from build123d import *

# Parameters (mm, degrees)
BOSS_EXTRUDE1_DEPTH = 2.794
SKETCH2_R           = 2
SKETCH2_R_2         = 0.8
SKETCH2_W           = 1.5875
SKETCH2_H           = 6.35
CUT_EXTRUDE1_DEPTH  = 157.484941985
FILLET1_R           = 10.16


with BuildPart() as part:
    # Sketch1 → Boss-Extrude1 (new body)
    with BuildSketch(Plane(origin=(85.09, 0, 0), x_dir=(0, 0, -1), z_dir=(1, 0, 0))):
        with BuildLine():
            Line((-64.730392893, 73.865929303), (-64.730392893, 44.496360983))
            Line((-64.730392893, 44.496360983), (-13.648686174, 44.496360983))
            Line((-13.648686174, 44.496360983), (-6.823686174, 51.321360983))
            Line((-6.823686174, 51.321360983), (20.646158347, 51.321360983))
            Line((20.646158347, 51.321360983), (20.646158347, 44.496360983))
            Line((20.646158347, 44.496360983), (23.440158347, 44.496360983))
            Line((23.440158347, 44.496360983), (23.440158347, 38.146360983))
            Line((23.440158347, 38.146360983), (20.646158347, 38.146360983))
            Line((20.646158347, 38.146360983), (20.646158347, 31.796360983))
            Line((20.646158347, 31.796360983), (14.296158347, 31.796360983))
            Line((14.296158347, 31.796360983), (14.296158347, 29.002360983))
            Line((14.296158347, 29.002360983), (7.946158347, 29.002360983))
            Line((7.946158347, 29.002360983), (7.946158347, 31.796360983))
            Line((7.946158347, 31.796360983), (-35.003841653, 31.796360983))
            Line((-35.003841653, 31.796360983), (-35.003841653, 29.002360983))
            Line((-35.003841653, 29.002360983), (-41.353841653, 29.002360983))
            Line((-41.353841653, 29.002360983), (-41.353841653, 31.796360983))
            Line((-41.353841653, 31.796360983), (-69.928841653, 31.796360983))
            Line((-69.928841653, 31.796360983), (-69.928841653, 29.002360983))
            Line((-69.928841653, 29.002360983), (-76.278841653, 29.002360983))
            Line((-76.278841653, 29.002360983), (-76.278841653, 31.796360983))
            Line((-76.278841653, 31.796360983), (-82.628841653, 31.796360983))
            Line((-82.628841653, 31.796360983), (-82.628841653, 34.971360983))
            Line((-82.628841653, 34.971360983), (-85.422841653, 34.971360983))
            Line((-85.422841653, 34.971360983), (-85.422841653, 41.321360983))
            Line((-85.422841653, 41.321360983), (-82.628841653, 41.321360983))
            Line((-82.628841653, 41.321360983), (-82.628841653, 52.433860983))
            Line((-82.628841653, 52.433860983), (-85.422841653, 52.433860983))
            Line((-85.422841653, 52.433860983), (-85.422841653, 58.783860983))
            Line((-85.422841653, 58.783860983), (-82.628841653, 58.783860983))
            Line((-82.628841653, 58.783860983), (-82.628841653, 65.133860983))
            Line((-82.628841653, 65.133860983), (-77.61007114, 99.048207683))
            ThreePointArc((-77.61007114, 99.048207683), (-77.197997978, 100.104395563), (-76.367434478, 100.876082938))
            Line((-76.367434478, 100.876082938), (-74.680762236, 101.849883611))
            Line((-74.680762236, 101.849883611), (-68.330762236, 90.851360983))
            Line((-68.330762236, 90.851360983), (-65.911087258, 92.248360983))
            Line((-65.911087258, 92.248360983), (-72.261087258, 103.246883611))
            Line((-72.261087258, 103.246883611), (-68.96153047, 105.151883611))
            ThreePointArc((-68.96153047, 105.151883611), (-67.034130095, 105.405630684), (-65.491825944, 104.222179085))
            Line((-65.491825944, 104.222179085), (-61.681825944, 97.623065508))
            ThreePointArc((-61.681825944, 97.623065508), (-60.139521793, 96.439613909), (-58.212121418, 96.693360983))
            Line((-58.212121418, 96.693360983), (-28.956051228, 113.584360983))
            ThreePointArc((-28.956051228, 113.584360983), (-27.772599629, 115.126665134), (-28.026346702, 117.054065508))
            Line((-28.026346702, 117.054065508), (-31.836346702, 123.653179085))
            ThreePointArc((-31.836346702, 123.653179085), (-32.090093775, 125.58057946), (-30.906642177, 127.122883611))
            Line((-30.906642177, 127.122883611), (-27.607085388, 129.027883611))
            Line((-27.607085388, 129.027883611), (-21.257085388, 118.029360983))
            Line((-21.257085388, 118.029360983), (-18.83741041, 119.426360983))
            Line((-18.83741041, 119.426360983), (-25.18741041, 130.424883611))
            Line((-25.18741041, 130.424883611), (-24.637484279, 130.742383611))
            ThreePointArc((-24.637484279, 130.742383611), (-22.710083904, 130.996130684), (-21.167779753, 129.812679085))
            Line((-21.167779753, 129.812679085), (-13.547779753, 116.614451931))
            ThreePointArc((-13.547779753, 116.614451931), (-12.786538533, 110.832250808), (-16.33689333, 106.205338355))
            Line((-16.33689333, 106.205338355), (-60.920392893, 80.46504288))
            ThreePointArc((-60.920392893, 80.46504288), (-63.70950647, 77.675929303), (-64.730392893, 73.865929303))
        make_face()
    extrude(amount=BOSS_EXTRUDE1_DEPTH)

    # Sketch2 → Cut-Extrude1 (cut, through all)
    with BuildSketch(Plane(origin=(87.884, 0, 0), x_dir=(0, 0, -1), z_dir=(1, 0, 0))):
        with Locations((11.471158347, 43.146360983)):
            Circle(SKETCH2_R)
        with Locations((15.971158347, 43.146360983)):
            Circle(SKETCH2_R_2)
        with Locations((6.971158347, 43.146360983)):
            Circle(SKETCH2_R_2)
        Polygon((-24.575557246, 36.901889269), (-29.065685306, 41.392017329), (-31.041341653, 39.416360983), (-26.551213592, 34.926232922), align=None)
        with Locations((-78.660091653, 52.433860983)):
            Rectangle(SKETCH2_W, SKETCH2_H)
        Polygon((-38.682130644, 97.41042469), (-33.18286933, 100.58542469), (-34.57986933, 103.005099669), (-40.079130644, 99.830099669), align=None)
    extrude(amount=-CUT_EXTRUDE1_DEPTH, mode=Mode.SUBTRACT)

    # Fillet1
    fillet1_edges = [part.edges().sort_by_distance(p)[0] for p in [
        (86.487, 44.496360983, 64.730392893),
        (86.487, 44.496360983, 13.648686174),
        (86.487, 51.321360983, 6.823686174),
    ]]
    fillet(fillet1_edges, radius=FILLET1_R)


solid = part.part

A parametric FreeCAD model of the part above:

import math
import FreeCAD as App
import Part
import Sketcher
Q = App.Units.Quantity


def edges_at(feature, points):
    """Names of the edges that pass closest to the given points."""
    edges = feature.Shape.Edges
    near = lambda p: min(range(len(edges)), key=lambda i: edges[i].distToShape(Part.Vertex(*p))[0])
    return sorted({f"Edge{near(p) + 1}" for p in points})


def add_polygon(sketch, points):
    """Adds a closed chain of lines whose ends are joined by coincident constraints."""
    first, n = sketch.GeometryCount, len(points)
    for a, b in zip(points, points[1:] + points[:1]):
        sketch.addGeometry(Part.LineSegment(App.Vector(*a, 0), App.Vector(*b, 0)), False)
    for i in range(n):
        sketch.addConstraint(Sketcher.Constraint("Coincident", first + i, 2, first + (i + 1) % n, 1))

doc = App.newDocument("Part")
params = doc.addObject("Spreadsheet::Sheet", "Params")
for row, (alias, value) in enumerate([
    ("sketch1_radius", "0.3 in"),
    ("sketch1_radius2", "0.1 in"),
    ("sketch1_length", "0.6 in"),
    ("sketch1_length2", "0.5 in"),
    ("sketch1_length3", "0.3 in"),
    ("pad1_length", "0.11 in"),
    ("sketch2_width", "0.25 in"),
    ("sketch2_length", "0.25 in"),
    ("sketch2_length2", "0.11 in"),
    ("sketch2_height", "0.0625 in"),
    ("fillet_radius", "0.4 in"),
], start=1):
    params.set(f"A{row}", alias)
    params.set(f"B{row}", "=" + value)
    params.setAlias(f"B{row}", alias)

body = doc.addObject("PartDesign::Body", "Body")

# Sketch on YZ plane
sketch1 = body.newObject("Sketcher::SketchObject", "Sketch")
sketch1.AttachmentSupport = (doc.getObject("YZ_Plane"), [""])
sketch1.MapMode = "FlatFace"
sketch1.AttachmentOffset = App.Placement(App.Vector(0, 0, 3.35 * 25.4), App.Rotation())
sketch1.addGeometry(Part.LineSegment(App.Vector(44.5, 64.7, 0), App.Vector(73.9, 64.7, 0)), False)
sketch1.addGeometry(Part.ArcOfCircle(Part.Circle(App.Vector(73.9, 57.1, 0), App.Vector(0, 0, 1), 7.6), math.radians(30), math.radians(90)), False)
sketch1.addGeometry(Part.LineSegment(App.Vector(80.5, 60.9, 0), App.Vector(106.2, 16.3, 0)), False)
sketch1.addGeometry(Part.ArcOfCircle(Part.Circle(App.Vector(112.8, 20.1, 0), App.Vector(0, 0, 1), 7.6), math.radians(-150), math.radians(-60)), False)
sketch1.addGeometry(Part.LineSegment(App.Vector(116.6, 13.5, 0), App.Vector(129.8, 21.2, 0)), False)
sketch1.addGeometry(Part.ArcOfCircle(Part.Circle(App.Vector(128.5, 23.4, 0), App.Vector(0, 0, 1), 2.5), math.radians(-60), math.radians(30)), False)
sketch1.addGeometry(Part.LineSegment(App.Vector(130.7, 24.6, 0), App.Vector(130.4, 25.2, 0)), False)
sketch1.addGeometry(Part.LineSegment(App.Vector(130.4, 25.2, 0), App.Vector(119.4, 18.8, 0)), False)
sketch1.addGeometry(Part.LineSegment(App.Vector(119.4, 18.8, 0), App.Vector(118, 21.3, 0)), False)
sketch1.addGeometry(Part.LineSegment(App.Vector(118, 21.3, 0), App.Vector(129, 27.6, 0)), False)
sketch1.addGeometry(Part.LineSegment(App.Vector(129, 27.6, 0), App.Vector(127.1, 30.9, 0)), False)
sketch1.addGeometry(Part.ArcOfCircle(Part.Circle(App.Vector(124.9, 29.6, 0), App.Vector(0, 0, 1), 2.5), math.radians(30), math.radians(120)), False)
sketch1.addGeometry(Part.LineSegment(App.Vector(123.7, 31.8, 0), App.Vector(117.1, 28, 0)), False)
sketch1.addGeometry(Part.ArcOfCircle(Part.Circle(App.Vector(115.8, 30.2, 0), App.Vector(0, 0, 1), 2.5), math.radians(-150), math.radians(-60)), False)
sketch1.addGeometry(Part.LineSegment(App.Vector(113.6, 29, 0), App.Vector(96.7, 58.2, 0)), False)
sketch1.addGeometry(Part.ArcOfCircle(Part.Circle(App.Vector(98.9, 59.5, 0), App.Vector(0, 0, 1), 2.5), math.radians(120), math.radians(210)), False)
sketch1.addGeometry(Part.LineSegment(App.Vector(97.6, 61.7, 0), App.Vector(104.2, 65.5, 0)), False)
sketch1.addGeometry(Part.ArcOfCircle(Part.Circle(App.Vector(103, 67.7, 0), App.Vector(0, 0, 1), 2.5), math.radians(-60), math.radians(30)), False)
sketch1.addGeometry(Part.LineSegment(App.Vector(105.2, 69, 0), App.Vector(103.2, 72.3, 0)), False)
sketch1.addGeometry(Part.LineSegment(App.Vector(103.2, 72.3, 0), App.Vector(92.2, 65.9, 0)), False)
sketch1.addGeometry(Part.LineSegment(App.Vector(92.2, 65.9, 0), App.Vector(90.9, 68.3, 0)), False)
sketch1.addGeometry(Part.LineSegment(App.Vector(90.9, 68.3, 0), App.Vector(101.8, 74.7, 0)), False)
sketch1.addGeometry(Part.LineSegment(App.Vector(101.8, 74.7, 0), App.Vector(100.9, 76.4, 0)), False)
sketch1.addGeometry(Part.ArcOfCircle(Part.Circle(App.Vector(98.7, 75.1, 0), App.Vector(0, 0, 1), 2.5), math.radians(30), math.radians(82)), False)
sketch1.addGeometry(Part.LineSegment(App.Vector(99, 77.6, 0), App.Vector(65.1, 82.6, 0)), False)
sketch1.addGeometry(Part.LineSegment(App.Vector(65.1, 82.6, 0), App.Vector(58.8, 82.6, 0)), False)
sketch1.addGeometry(Part.LineSegment(App.Vector(58.8, 82.6, 0), App.Vector(58.8, 85.4, 0)), False)
sketch1.addGeometry(Part.LineSegment(App.Vector(58.8, 85.4, 0), App.Vector(52.4, 85.4, 0)), False)
sketch1.addGeometry(Part.LineSegment(App.Vector(52.4, 85.4, 0), App.Vector(52.4, 82.6, 0)), False)
sketch1.addGeometry(Part.LineSegment(App.Vector(52.4, 82.6, 0), App.Vector(41.3, 82.6, 0)), False)
sketch1.addGeometry(Part.LineSegment(App.Vector(41.3, 82.6, 0), App.Vector(41.3, 85.4, 0)), False)
sketch1.addGeometry(Part.LineSegment(App.Vector(41.3, 85.4, 0), App.Vector(35, 85.4, 0)), False)
sketch1.addGeometry(Part.LineSegment(App.Vector(35, 85.4, 0), App.Vector(35, 82.6, 0)), False)
sketch1.addGeometry(Part.LineSegment(App.Vector(35, 82.6, 0), App.Vector(31.8, 82.6, 0)), False)
sketch1.addGeometry(Part.LineSegment(App.Vector(31.8, 82.6, 0), App.Vector(31.8, 76.3, 0)), False)
sketch1.addGeometry(Part.LineSegment(App.Vector(31.8, 76.3, 0), App.Vector(29, 76.3, 0)), False)
sketch1.addGeometry(Part.LineSegment(App.Vector(29, 76.3, 0), App.Vector(29, 69.9, 0)), False)
sketch1.addGeometry(Part.LineSegment(App.Vector(29, 69.9, 0), App.Vector(31.8, 69.9, 0)), False)
sketch1.addGeometry(Part.LineSegment(App.Vector(31.8, 69.9, 0), App.Vector(31.8, 41.4, 0)), False)
sketch1.addGeometry(Part.LineSegment(App.Vector(31.8, 41.4, 0), App.Vector(29, 41.4, 0)), False)
sketch1.addGeometry(Part.LineSegment(App.Vector(29, 41.4, 0), App.Vector(29, 35, 0)), False)
sketch1.addGeometry(Part.LineSegment(App.Vector(29, 35, 0), App.Vector(31.8, 35, 0)), False)
sketch1.addGeometry(Part.LineSegment(App.Vector(31.8, 35, 0), App.Vector(31.8, -7.9, 0)), False)
sketch1.addGeometry(Part.LineSegment(App.Vector(31.8, -7.9, 0), App.Vector(29, -7.9, 0)), False)
sketch1.addGeometry(Part.LineSegment(App.Vector(29, -7.9, 0), App.Vector(29, -14.3, 0)), False)
sketch1.addGeometry(Part.LineSegment(App.Vector(29, -14.3, 0), App.Vector(31.8, -14.3, 0)), False)
sketch1.addGeometry(Part.LineSegment(App.Vector(31.8, -14.3, 0), App.Vector(31.8, -20.6, 0)), False)
sketch1.addGeometry(Part.LineSegment(App.Vector(31.8, -20.6, 0), App.Vector(38.1, -20.6, 0)), False)
sketch1.addGeometry(Part.LineSegment(App.Vector(38.1, -20.6, 0), App.Vector(38.1, -23.4, 0)), False)
sketch1.addGeometry(Part.LineSegment(App.Vector(38.1, -23.4, 0), App.Vector(44.5, -23.4, 0)), False)
sketch1.addGeometry(Part.LineSegment(App.Vector(44.5, -23.4, 0), App.Vector(44.5, -20.6, 0)), False)
sketch1.addGeometry(Part.LineSegment(App.Vector(44.5, -20.6, 0), App.Vector(51.3, -20.6, 0)), False)
sketch1.addGeometry(Part.LineSegment(App.Vector(51.3, -20.6, 0), App.Vector(51.3, 6.8, 0)), False)
sketch1.addGeometry(Part.LineSegment(App.Vector(51.3, 6.8, 0), App.Vector(44.5, 13.6, 0)), False)
sketch1.addGeometry(Part.LineSegment(App.Vector(44.5, 13.6, 0), App.Vector(44.5, 64.7, 0)), False)
sketch1.addConstraint(Sketcher.Constraint("Tangent", 0, 2, 1, 2))
sketch1.addConstraint(Sketcher.Constraint("Tangent", 1, 1, 2, 1))
sketch1.addConstraint(Sketcher.Constraint("Tangent", 2, 2, 3, 1))
sketch1.addConstraint(Sketcher.Constraint("Tangent", 3, 2, 4, 1))
sketch1.addConstraint(Sketcher.Constraint("Tangent", 4, 2, 5, 1))
sketch1.addConstraint(Sketcher.Constraint("Tangent", 5, 2, 6, 1))
sketch1.addConstraint(Sketcher.Constraint("Coincident", 6, 2, 7, 1))
sketch1.addConstraint(Sketcher.Constraint("Coincident", 7, 2, 8, 1))
sketch1.addConstraint(Sketcher.Constraint("Coincident", 8, 2, 9, 1))
sketch1.addConstraint(Sketcher.Constraint("Coincident", 9, 2, 10, 1))
sketch1.addConstraint(Sketcher.Constraint("Tangent", 10, 2, 11, 1))
sketch1.addConstraint(Sketcher.Constraint("Tangent", 11, 2, 12, 1))
sketch1.addConstraint(Sketcher.Constraint("Tangent", 12, 2, 13, 2))
sketch1.addConstraint(Sketcher.Constraint("Tangent", 13, 1, 14, 1))
sketch1.addConstraint(Sketcher.Constraint("Tangent", 14, 2, 15, 2))
sketch1.addConstraint(Sketcher.Constraint("Tangent", 15, 1, 16, 1))
sketch1.addConstraint(Sketcher.Constraint("Tangent", 16, 2, 17, 1))
sketch1.addConstraint(Sketcher.Constraint("Tangent", 17, 2, 18, 1))
sketch1.addConstraint(Sketcher.Constraint("Coincident", 18, 2, 19, 1))
sketch1.addConstraint(Sketcher.Constraint("Coincident", 19, 2, 20, 1))
sketch1.addConstraint(Sketcher.Constraint("Coincident", 20, 2, 21, 1))
sketch1.addConstraint(Sketcher.Constraint("Coincident", 21, 2, 22, 1))
sketch1.addConstraint(Sketcher.Constraint("Tangent", 22, 2, 23, 1))
sketch1.addConstraint(Sketcher.Constraint("Tangent", 23, 2, 24, 1))
sketch1.addConstraint(Sketcher.Constraint("Coincident", 24, 2, 25, 1))
sketch1.addConstraint(Sketcher.Constraint("Coincident", 25, 2, 26, 1))
sketch1.addConstraint(Sketcher.Constraint("Coincident", 26, 2, 27, 1))
sketch1.addConstraint(Sketcher.Constraint("Coincident", 27, 2, 28, 1))
sketch1.addConstraint(Sketcher.Constraint("Coincident", 28, 2, 29, 1))
sketch1.addConstraint(Sketcher.Constraint("Coincident", 29, 2, 30, 1))
sketch1.addConstraint(Sketcher.Constraint("Coincident", 30, 2, 31, 1))
sketch1.addConstraint(Sketcher.Constraint("Coincident", 31, 2, 32, 1))
sketch1.addConstraint(Sketcher.Constraint("Coincident", 32, 2, 33, 1))
sketch1.addConstraint(Sketcher.Constraint("Coincident", 33, 2, 34, 1))
sketch1.addConstraint(Sketcher.Constraint("Coincident", 34, 2, 35, 1))
sketch1.addConstraint(Sketcher.Constraint("Coincident", 35, 2, 36, 1))
sketch1.addConstraint(Sketcher.Constraint("Coincident", 36, 2, 37, 1))
sketch1.addConstraint(Sketcher.Constraint("Coincident", 37, 2, 38, 1))
sketch1.addConstraint(Sketcher.Constraint("Coincident", 38, 2, 39, 1))
sketch1.addConstraint(Sketcher.Constraint("Coincident", 39, 2, 40, 1))
sketch1.addConstraint(Sketcher.Constraint("Coincident", 40, 2, 41, 1))
sketch1.addConstraint(Sketcher.Constraint("Coincident", 41, 2, 42, 1))
sketch1.addConstraint(Sketcher.Constraint("Coincident", 42, 2, 43, 1))
sketch1.addConstraint(Sketcher.Constraint("Coincident", 43, 2, 44, 1))
sketch1.addConstraint(Sketcher.Constraint("Coincident", 44, 2, 45, 1))
sketch1.addConstraint(Sketcher.Constraint("Coincident", 45, 2, 46, 1))
sketch1.addConstraint(Sketcher.Constraint("Coincident", 46, 2, 47, 1))
sketch1.addConstraint(Sketcher.Constraint("Coincident", 47, 2, 48, 1))
sketch1.addConstraint(Sketcher.Constraint("Coincident", 48, 2, 49, 1))
sketch1.addConstraint(Sketcher.Constraint("Coincident", 49, 2, 50, 1))
sketch1.addConstraint(Sketcher.Constraint("Coincident", 50, 2, 51, 1))
sketch1.addConstraint(Sketcher.Constraint("Coincident", 51, 2, 52, 1))
sketch1.addConstraint(Sketcher.Constraint("Coincident", 52, 2, 53, 1))
sketch1.addConstraint(Sketcher.Constraint("Coincident", 53, 2, 54, 1))
sketch1.addConstraint(Sketcher.Constraint("Coincident", 54, 2, 0, 1))
sketch1.addConstraint(Sketcher.Constraint("Horizontal", 0))
sketch1.addConstraint(Sketcher.Constraint("Horizontal", 25))
sketch1.addConstraint(Sketcher.Constraint("Vertical", 26))
sketch1.addConstraint(Sketcher.Constraint("Horizontal", 27))
sketch1.addConstraint(Sketcher.Constraint("Vertical", 28))
sketch1.addConstraint(Sketcher.Constraint("Horizontal", 29))
sketch1.addConstraint(Sketcher.Constraint("Vertical", 30))
sketch1.addConstraint(Sketcher.Constraint("Horizontal", 31))
sketch1.addConstraint(Sketcher.Constraint("Vertical", 32))
sketch1.addConstraint(Sketcher.Constraint("Horizontal", 33))
sketch1.addConstraint(Sketcher.Constraint("Vertical", 34))
sketch1.addConstraint(Sketcher.Constraint("Horizontal", 35))
sketch1.addConstraint(Sketcher.Constraint("Vertical", 36))
sketch1.addConstraint(Sketcher.Constraint("Horizontal", 37))
sketch1.addConstraint(Sketcher.Constraint("Vertical", 38))
sketch1.addConstraint(Sketcher.Constraint("Horizontal", 39))
sketch1.addConstraint(Sketcher.Constraint("Vertical", 40))
sketch1.addConstraint(Sketcher.Constraint("Horizontal", 41))
sketch1.addConstraint(Sketcher.Constraint("Vertical", 42))
sketch1.addConstraint(Sketcher.Constraint("Horizontal", 43))
sketch1.addConstraint(Sketcher.Constraint("Vertical", 44))
sketch1.addConstraint(Sketcher.Constraint("Horizontal", 45))
sketch1.addConstraint(Sketcher.Constraint("Vertical", 46))
sketch1.addConstraint(Sketcher.Constraint("Horizontal", 47))
sketch1.addConstraint(Sketcher.Constraint("Vertical", 48))
sketch1.addConstraint(Sketcher.Constraint("Horizontal", 49))
sketch1.addConstraint(Sketcher.Constraint("Vertical", 50))
sketch1.addConstraint(Sketcher.Constraint("Horizontal", 51))
sketch1.addConstraint(Sketcher.Constraint("Vertical", 52))
sketch1.addConstraint(Sketcher.Constraint("Vertical", 54))
sketch1.addConstraint(Sketcher.Constraint("Equal", 1, 3))
sketch1.addConstraint(Sketcher.Constraint("Equal", 5, 11))
sketch1.addConstraint(Sketcher.Constraint("Equal", 11, 13))
sketch1.addConstraint(Sketcher.Constraint("Equal", 13, 15))
sketch1.addConstraint(Sketcher.Constraint("Equal", 15, 17))
sketch1.addConstraint(Sketcher.Constraint("Equal", 17, 23))
sketch1.addConstraint(Sketcher.Constraint("Perpendicular", 2, 4))
sketch1.addConstraint(Sketcher.Constraint("Perpendicular", 4, 6))
sketch1.addConstraint(Sketcher.Constraint("Perpendicular", 6, 7))
sketch1.addConstraint(Sketcher.Constraint("Perpendicular", 7, 8))
sketch1.addConstraint(Sketcher.Constraint("Perpendicular", 8, 9))
sketch1.addConstraint(Sketcher.Constraint("Perpendicular", 9, 10))
sketch1.addConstraint(Sketcher.Constraint("Perpendicular", 10, 12))
sketch1.addConstraint(Sketcher.Constraint("Perpendicular", 12, 14))
sketch1.addConstraint(Sketcher.Constraint("Perpendicular", 14, 16))
sketch1.addConstraint(Sketcher.Constraint("Perpendicular", 16, 18))
sketch1.addConstraint(Sketcher.Constraint("Perpendicular", 18, 19))
sketch1.addConstraint(Sketcher.Constraint("Perpendicular", 19, 20))
sketch1.addConstraint(Sketcher.Constraint("Perpendicular", 20, 21))
sketch1.addConstraint(Sketcher.Constraint("Perpendicular", 21, 22))
sketch1.addConstraint(Sketcher.Constraint("Horizontal", 25, 2, 28, 2))
sketch1.addConstraint(Sketcher.Constraint("Horizontal", 27, 2, 30, 2))
sketch1.addConstraint(Sketcher.Constraint("Horizontal", 29, 2, 32, 2))
sketch1.addConstraint(Sketcher.Constraint("Horizontal", 47, 2, 50, 2))
sketch1.addConstraint(Sketcher.Constraint("Vertical", 34, 2, 37, 2))
sketch1.addConstraint(Sketcher.Constraint("Vertical", 36, 2, 39, 2))
sketch1.addConstraint(Sketcher.Constraint("Vertical", 38, 2, 41, 2))
sketch1.addConstraint(Sketcher.Constraint("Vertical", 40, 2, 43, 2))
sketch1.addConstraint(Sketcher.Constraint("Vertical", 42, 2, 45, 2))
sketch1.addConstraint(Sketcher.Constraint("Vertical", 50, 2, 53, 2))
sketch1.addConstraint(Sketcher.Constraint("Equal", 25, 27))
sketch1.addConstraint(Sketcher.Constraint("Equal", 27, 31))
sketch1.addConstraint(Sketcher.Constraint("Equal", 31, 47))
sketch1.addConstraint(Sketcher.Constraint("Equal", 47, 49))
sketch1.addConstraint(Sketcher.Constraint("Equal", 45, 26))
sketch1.addConstraint(Sketcher.Constraint("Equal", 49, 34))
sketch1.addConstraint(Sketcher.Constraint("Equal", 34, 36))
sketch1.addConstraint(Sketcher.Constraint("Equal", 36, 40))
sketch1.addConstraint(Sketcher.Constraint("Equal", 40, 44))
sketch1.addConstraint(Sketcher.Constraint("Equal", 44, 46))
sketch1.addConstraint(Sketcher.Constraint("Equal", 32, 48))
sketch1.addConstraint(Sketcher.Constraint("Equal", 7, 9))
sketch1.addConstraint(Sketcher.Constraint("Equal", 12, 16))
sketch1.addConstraint(Sketcher.Constraint("Equal", 10, 18))
sketch1.addConstraint(Sketcher.Constraint("Equal", 9, 19))
sketch1.addConstraint(Sketcher.Constraint("Equal", 8, 20))
sketch1.addConstraint(Sketcher.Constraint("Equal", 19, 21))
sketch1.addConstraint(Sketcher.Constraint("Radius", 1, Q("0.3 in")))
sketch1.addConstraint(Sketcher.Constraint("Radius", 5, Q("0.1 in")))
sketch1.addConstraint(Sketcher.Constraint("Angle", 2, Q("-60 deg")))
sketch1.addConstraint(Sketcher.Constraint("Angle", 53, Q("135 deg")))
sketch1.addConstraint(Sketcher.Constraint("Distance", 4, Q("0.6 in")))
sketch1.addConstraint(Sketcher.Constraint("Distance", 7, Q("0.5 in")))
sketch1.addConstraint(Sketcher.Constraint("Distance", 12, Q("0.3 in")))
sketch1.addConstraint(Sketcher.Constraint("DistanceX", 25, 2, 25, 1, Q("0.25 in")))
sketch1.addConstraint(Sketcher.Constraint("DistanceX", 35, 2, 35, 1, Q("0.11 in")))
sketch1.addConstraint(Sketcher.Constraint("Distance", 8, Q("0.11 in")))
sketch1.addConstraint(Sketcher.Constraint("Distance", 10, Q("0.15 in")))
sketch1.addConstraint(Sketcher.Constraint("Distance", 14, Q("1.33 in")))
sketch1.addConstraint(Sketcher.Constraint("DistanceX", 29, 2, 29, 1, Q("0.4375 in")))
sketch1.addConstraint(Sketcher.Constraint("DistanceX", 33, 2, 33, 1, Q("0.125 in")))
sketch1.addConstraint(Sketcher.Constraint("DistanceY", 38, 2, 38, 1, Q("1.125 in")))
sketch1.addConstraint(Sketcher.Constraint("Distance", 6, Q("0.025 in")))
sketch1.addConstraint(Sketcher.Constraint("DistanceX", 51, 1, 51, 2, Q("6.825 mm")))
sketch1.addConstraint(Sketcher.Constraint("DistanceY", 42, 2, 42, 1, Q("42.95 mm")))
sketch1.addConstraint(Sketcher.Constraint("Distance", 22, Q("1.947601 mm")))
sketch1.addConstraint(Sketcher.Constraint("DistanceX", 0, 1, 0, 2, Q("29.369568 mm")))
sketch1.addConstraint(Sketcher.Constraint("Distance", 2, Q("51.480591 mm")))
sketch1.addConstraint(Sketcher.Constraint("DistanceY", 52, 1, 52, 2, Q("27.469845 mm")))
sketch1.addConstraint(Sketcher.Constraint("DistanceY", 54, 1, 54, 2, Q("51.081707 mm")))
sketch1.addConstraint(Sketcher.Constraint("DistanceX", -1, 1, 1, 3, Q("73.865929 mm")))
sketch1.addConstraint(Sketcher.Constraint("DistanceY", -1, 1, 13, 3, Q("30.226051 mm")))
sketch1.setExpression("Constraints[132]", "Params.sketch1_radius")
sketch1.setExpression("Constraints[133]", "Params.sketch1_radius2")
sketch1.setExpression("Constraints[136]", "Params.sketch1_length")
sketch1.setExpression("Constraints[137]", "Params.sketch1_length2")
sketch1.setExpression("Constraints[138]", "Params.sketch1_length3")
pad1 = body.newObject("PartDesign::Pad", "Pad")
pad1.Profile = sketch1
pad1.setExpression("Length", "Params.pad1_length")

# Sketch on YZ plane
sketch2 = body.newObject("Sketcher::SketchObject", "Sketch001")
sketch2.AttachmentSupport = (doc.getObject("YZ_Plane"), [""])
sketch2.MapMode = "FlatFace"
sketch2.AttachmentOffset = App.Placement(App.Vector(0, 0, 3.46 * 25.4), App.Rotation())
sketch2.addGeometry(Part.Circle(App.Vector(43.1, -11.5, 0), App.Vector(0, 0, 1), 2), False)  # 0
sketch2.addGeometry(Part.Circle(App.Vector(43.1, -16, 0), App.Vector(0, 0, 1), 0.8), False)  # 1
sketch2.addGeometry(Part.Circle(App.Vector(43.1, -7, 0), App.Vector(0, 0, 1), 0.8), False)  # 2
add_polygon(sketch2, [(36.9, 24.6), (41.4, 29.1), (39.4, 31), (34.9, 26.6)])  # lines 3-6
add_polygon(sketch2, [(55.6, 79.5), (49.3, 79.5), (49.3, 77.9), (55.6, 77.9)])  # lines 7-10
add_polygon(sketch2, [(97.4, 38.7), (100.6, 33.2), (103, 34.6), (99.8, 40.1)])  # lines 11-14
sketch2.addConstraint(Sketcher.Constraint("Horizontal", 7))
sketch2.addConstraint(Sketcher.Constraint("Vertical", 8))
sketch2.addConstraint(Sketcher.Constraint("Horizontal", 9))
sketch2.addConstraint(Sketcher.Constraint("Vertical", 10))
sketch2.addConstraint(Sketcher.Constraint("Equal", 1, 2))
sketch2.addConstraint(Sketcher.Constraint("Perpendicular", 3, 4))
sketch2.addConstraint(Sketcher.Constraint("Perpendicular", 4, 5))
sketch2.addConstraint(Sketcher.Constraint("Perpendicular", 5, 6))
sketch2.addConstraint(Sketcher.Constraint("Perpendicular", 11, 12))
sketch2.addConstraint(Sketcher.Constraint("Perpendicular", 12, 13))
sketch2.addConstraint(Sketcher.Constraint("Perpendicular", 13, 14))
sketch2.addConstraint(Sketcher.Constraint("Vertical", 0, 3, 1, 3))
sketch2.addConstraint(Sketcher.Constraint("Vertical", 1, 3, 2, 3))
sketch2.addConstraint(Sketcher.Constraint("Equal", 5, 11))
sketch2.addConstraint(Sketcher.Constraint("Equal", 6, 12))
sketch2.addConstraint(Sketcher.Constraint("Angle", 3, Q("45 deg")))
sketch2.addConstraint(Sketcher.Constraint("Angle", 11, Q("-60 deg")))
sketch2.addConstraint(Sketcher.Constraint("DistanceX", 7, 2, 7, 1, Q("0.25 in")))
sketch2.addConstraint(Sketcher.Constraint("Distance", 3, Q("0.25 in")))
sketch2.addConstraint(Sketcher.Constraint("Distance", 4, Q("0.11 in")))
sketch2.addConstraint(Sketcher.Constraint("Diameter", 0, Q("4 mm")))
sketch2.addConstraint(Sketcher.Constraint("Diameter", 1, Q("1.6 mm")))
sketch2.addConstraint(Sketcher.Constraint("DistanceY", 8, 2, 8, 1, Q("0.0625 in")))
sketch2.addConstraint(Sketcher.Constraint("DistanceY", -1, 1, 4, 2, Q("1.2221001 in")))
sketch2.addConstraint(Sketcher.Constraint("DistanceX", 4, 2, 7, 2, Q("0.3875 in")))
sketch2.addConstraint(Sketcher.Constraint("DistanceX", -1, 1, 12, 2, Q("103.0051 mm")))
sketch2.addConstraint(Sketcher.Constraint("DistanceY", 1, 3, 0, 3, Q("4.5 mm")))
sketch2.addConstraint(Sketcher.Constraint("DistanceY", 0, 3, 2, 3, Q("4.5 mm")))
sketch2.addConstraint(Sketcher.Constraint("DistanceX", 4, 2, 2, 3, Q("3.73 mm")))
sketch2.addConstraint(Sketcher.Constraint("DistanceY", 2, 3, 4, 2, Q("38.0125 mm")))
sketch2.addConstraint(Sketcher.Constraint("DistanceY", 4, 2, 7, 2, Q("48.4125 mm")))
sketch2.addConstraint(Sketcher.Constraint("DistanceX", -1, 1, 0, 3, Q("43.146361 mm")))
sketch2.addConstraint(Sketcher.Constraint("DistanceY", -1, 1, 11, 2, Q("33.182869 mm")))
sketch2.setExpression("Constraints[29]", "Params.sketch2_width")
sketch2.setExpression("Constraints[30]", "Params.sketch2_length")
sketch2.setExpression("Constraints[31]", "Params.sketch2_length2")
sketch2.setExpression("Constraints[34]", "Params.sketch2_height")
pocket1 = body.newObject("PartDesign::Pocket", "Pocket")
pocket1.Profile = sketch2
pocket1.Type = "ThroughAll"
doc.recompute()

fillet = body.newObject("PartDesign::Fillet", "Fillet")
fillet.Base = (pocket1, edges_at(pocket1, [(86.487, 44.496, 64.73), (86.487, 44.496, 13.649), (86.487, 51.321, 6.824)]))
fillet.setExpression("Radius", "Params.fillet_radius")

doc.recompute()
